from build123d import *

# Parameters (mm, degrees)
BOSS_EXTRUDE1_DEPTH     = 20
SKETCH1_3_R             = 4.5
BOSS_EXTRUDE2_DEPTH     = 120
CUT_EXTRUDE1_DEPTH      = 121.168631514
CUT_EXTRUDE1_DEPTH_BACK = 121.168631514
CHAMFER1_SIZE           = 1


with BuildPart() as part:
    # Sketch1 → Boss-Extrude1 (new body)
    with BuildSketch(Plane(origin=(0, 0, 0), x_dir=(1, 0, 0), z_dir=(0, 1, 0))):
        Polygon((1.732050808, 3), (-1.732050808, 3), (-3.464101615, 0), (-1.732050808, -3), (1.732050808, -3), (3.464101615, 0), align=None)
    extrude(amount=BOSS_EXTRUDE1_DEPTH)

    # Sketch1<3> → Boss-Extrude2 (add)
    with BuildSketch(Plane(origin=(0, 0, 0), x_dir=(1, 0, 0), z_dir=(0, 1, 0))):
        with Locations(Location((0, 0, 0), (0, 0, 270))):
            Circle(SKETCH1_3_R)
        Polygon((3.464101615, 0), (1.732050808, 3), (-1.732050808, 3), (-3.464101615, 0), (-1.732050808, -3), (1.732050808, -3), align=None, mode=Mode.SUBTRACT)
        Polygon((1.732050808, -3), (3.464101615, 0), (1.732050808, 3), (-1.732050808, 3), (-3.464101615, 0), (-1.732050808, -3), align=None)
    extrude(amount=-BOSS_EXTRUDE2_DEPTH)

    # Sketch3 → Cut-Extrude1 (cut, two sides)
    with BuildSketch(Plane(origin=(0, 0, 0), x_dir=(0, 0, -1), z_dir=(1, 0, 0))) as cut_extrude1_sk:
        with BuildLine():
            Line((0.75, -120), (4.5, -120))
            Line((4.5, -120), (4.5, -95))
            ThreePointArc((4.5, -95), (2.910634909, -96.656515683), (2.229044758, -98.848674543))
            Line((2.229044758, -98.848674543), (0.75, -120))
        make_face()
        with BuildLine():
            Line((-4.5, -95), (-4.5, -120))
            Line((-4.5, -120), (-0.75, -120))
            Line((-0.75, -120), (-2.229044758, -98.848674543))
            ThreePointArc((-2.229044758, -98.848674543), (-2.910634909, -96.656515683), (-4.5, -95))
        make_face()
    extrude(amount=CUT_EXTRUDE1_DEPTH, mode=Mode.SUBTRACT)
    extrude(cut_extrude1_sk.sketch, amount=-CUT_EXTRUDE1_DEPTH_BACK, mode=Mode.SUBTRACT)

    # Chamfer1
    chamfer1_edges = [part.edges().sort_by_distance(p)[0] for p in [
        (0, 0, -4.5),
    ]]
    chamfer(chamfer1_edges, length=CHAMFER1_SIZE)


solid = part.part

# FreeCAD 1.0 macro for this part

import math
import FreeCAD as App
import Part
import Sketcher
Q = App.Units.Quantity


def edges_at(feature, points):
    """Names of the edges that pass closest to the given points."""
    edges = feature.Shape.Edges
    near = lambda p: min(range(len(edges)), key=lambda i: edges[i].distToShape(Part.Vertex(*p))[0])
    return sorted({f"Edge{near(p) + 1}" for p in points})


def add_polygon(sketch, points):
    """Adds a closed chain of lines whose ends are joined by coincident constraints."""
    first, n = sketch.GeometryCount, len(points)
    for a, b in zip(points, points[1:] + points[:1]):
        sketch.addGeometry(Part.LineSegment(App.Vector(*a, 0), App.Vector(*b, 0)), False)
    for i in range(n):
        sketch.addConstraint(Sketcher.Constraint("Coincident", first + i, 2, first + (i + 1) % n, 1))

doc = App.newDocument("Part")
body = doc.addObject("PartDesign::Body", "Body")

sketch1 = body.newObject("Sketcher::SketchObject", "Sketch")
sketch1.AttachmentSupport = (doc.getObject("XZ_Plane"), [""])
sketch1.MapMode = "FlatFace"
add_polygon(sketch1, [(1.7, -3), (-1.7, -3), (-3.5, 0), (-1.7, 3), (1.7, 3), (3.5, 0)])
sketch1.addConstraint(Sketcher.Constraint("Horizontal", 0))
sketch1.addConstraint(Sketcher.Constraint("Horizontal", 3))
sketch1.addConstraint(Sketcher.Constraint("Symmetric", 0, 2, 3, 2, -1, 1))
sketch1.addConstraint(Sketcher.Constraint("Symmetric", 1, 2, 4, 2, -1, 1))
sketch1.addConstraint(Sketcher.Constraint("PointOnObject", 1, 2, -1))
sketch1.addConstraint(Sketcher.Constraint("Parallel", 2, 5))
sketch1.addConstraint(Sketcher.Constraint("Vertical", 0, 2, 2, 2))
sketch1.addConstraint(Sketcher.Constraint("Angle", 1, Q("120 deg")))
sketch1.addConstraint(Sketcher.Constraint("DistanceY", 0, 2, -1, 1, Q("3 mm")))
sketch1.addConstraint(Sketcher.Constraint("DistanceX", 0, 2, 0, 1, Q("3.464102 mm")))
pad1 = body.newObject("PartDesign::Pad", "Pad")
pad1.Profile = sketch1
pad1.Length = 20
pad1.Reversed = True

sketch2 = body.newObject("Sketcher::SketchObject", "Sketch001")
sketch2.AttachmentSupport = (doc.getObject("XZ_Plane"), [""])
sketch2.MapMode = "FlatFace"
sketch2.addGeometry(Part.Circle(App.Vector(0, 0, 0), App.Vector(0, 0, 1), 4.5), False)
sketch2.addConstraint(Sketcher.Constraint("Coincident", 0, 3, -1, 1))
sketch2.addConstraint(Sketcher.Constraint("Diameter", 0, Q("9 mm")))
pad2 = body.newObject("PartDesign::Pad", "Pad001")
pad2.Profile = sketch2
pad2.Length = 120

sketch3 = body.newObject("Sketcher::SketchObject", "Sketch002")
sketch3.AttachmentSupport = (doc.getObject("YZ_Plane"), [""])
sketch3.MapMode = "FlatFace"
sketch3.addGeometry(Part.LineSegment(App.Vector(-120, -0.8, 0), App.Vector(-120, -4.5, 0)), False)
sketch3.addGeometry(Part.LineSegment(App.Vector(-120, -4.5, 0), App.Vector(-95, -4.5, 0)), False)
sketch3.addGeometry(Part.ArcOfCircle(Part.Circle(App.Vector(-99.2, -7.2, 0), App.Vector(0, 0, 1), 5), math.radians(33), math.radians(86)), False)
sketch3.addGeometry(Part.LineSegment(App.Vector(-98.8, -2.2, 0), App.Vector(-120, -0.8, 0)), False)
sketch3.addGeometry(Part.LineSegment(App.Vector(-95, 4.5, 0), App.Vector(-120, 4.5, 0)), False)
sketch3.addGeometry(Part.LineSegment(App.Vector(-120, 4.5, 0), App.Vector(-120, 0.8, 0)), False)
sketch3.addGeometry(Part.LineSegment(App.Vector(-120, 0.8, 0), App.Vector(-98.8, 2.2, 0)), False)
sketch3.addGeometry(Part.ArcOfCircle(Part.Circle(App.Vector(-99.2, 7.2, 0), App.Vector(0, 0, 1), 5), math.radians(-86), math.radians(-33)), False)
sketch3.addConstraint(Sketcher.Constraint("Coincident", 0, 2, 1, 1))
sketch3.addConstraint(Sketcher.Constraint("Coincident", 1, 2, 2, 1))
sketch3.addConstraint(Sketcher.Constraint("Tangent", 2, 2, 3, 1))
sketch3.addConstraint(Sketcher.Constraint("Coincident", 3, 2, 0, 1))
sketch3.addConstraint(Sketcher.Constraint("Coincident", 4, 2, 5, 1))
sketch3.addConstraint(Sketcher.Constraint("Coincident", 5, 2, 6, 1))
sketch3.addConstraint(Sketcher.Constraint("Tangent", 6, 2, 7, 1))
sketch3.addConstraint(Sketcher.Constraint("Coincident", 7, 2, 4, 1))
sketch3.addConstraint(Sketcher.Constraint("Vertical", 0))
sketch3.addConstraint(Sketcher.Constraint("Horizontal", 1))
sketch3.addConstraint(Sketcher.Constraint("Horizontal", 4))
sketch3.addConstraint(Sketcher.Constraint("Vertical", 5))
sketch3.addConstraint(Sketcher.Constraint("Equal", 2, 7))
sketch3.addConstraint(Sketcher.Constraint("Symmetric", 2, 3, 7, 3, -1))
sketch3.addConstraint(Sketcher.Constraint("Symmetric", 0, 2, 4, 2, -1))
sketch3.addConstraint(Sketcher.Constraint("Vertical", 2, 2, 6, 2))
sketch3.addConstraint(Sketcher.Constraint("Radius", 2, Q("5 mm")))
sketch3.addConstraint(Sketcher.Constraint("DistanceX", 1, 1, 1, 2, Q("25 mm")))
sketch3.addConstraint(Sketcher.Constraint("Angle", 3, Q("176 deg")))
sketch3.addConstraint(Sketcher.Constraint("DistanceX", 0, 2, -1, 1, Q("120 mm")))
sketch3.addConstraint(Sketcher.Constraint("DistanceY", 0, 2, 4, 2, Q("9 mm")))
sketch3.addConstraint(Sketcher.Constraint("DistanceY", 0, 2, 0, 1, Q("3.75 mm")))
pocket1 = body.newObject("PartDesign::Pocket", "Pocket")
pocket1.Profile = sketch3
pocket1.Type = "ThroughAll"
pocket1.Midplane = True
doc.recompute()

chamfer = body.newObject("PartDesign::Chamfer", "Chamfer")
chamfer.Base = (pocket1, edges_at(pocket1, [(0, 0, -4.5)]))
chamfer.Size = 1

doc.recompute()
